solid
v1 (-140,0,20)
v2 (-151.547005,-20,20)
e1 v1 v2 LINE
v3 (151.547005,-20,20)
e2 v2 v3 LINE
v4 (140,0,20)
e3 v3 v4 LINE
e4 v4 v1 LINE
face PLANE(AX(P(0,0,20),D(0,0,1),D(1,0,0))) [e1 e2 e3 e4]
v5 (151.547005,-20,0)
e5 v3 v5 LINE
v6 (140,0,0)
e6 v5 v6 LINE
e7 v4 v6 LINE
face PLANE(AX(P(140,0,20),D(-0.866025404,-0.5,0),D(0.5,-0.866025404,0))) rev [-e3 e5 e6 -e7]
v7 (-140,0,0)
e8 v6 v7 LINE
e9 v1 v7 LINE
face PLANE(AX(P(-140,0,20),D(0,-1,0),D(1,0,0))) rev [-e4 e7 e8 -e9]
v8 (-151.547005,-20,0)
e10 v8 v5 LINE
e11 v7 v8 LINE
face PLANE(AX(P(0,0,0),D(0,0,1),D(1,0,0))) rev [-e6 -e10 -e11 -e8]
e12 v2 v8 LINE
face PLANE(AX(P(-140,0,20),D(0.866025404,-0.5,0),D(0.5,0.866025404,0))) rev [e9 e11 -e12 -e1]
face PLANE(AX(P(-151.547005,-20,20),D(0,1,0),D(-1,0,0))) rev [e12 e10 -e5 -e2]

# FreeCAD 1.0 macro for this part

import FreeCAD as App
import Part
import Sketcher
Q = App.Units.Quantity

doc = App.newDocument("Part")
params = doc.addObject("Spreadsheet::Sheet", "Params")
for row, (alias, value) in enumerate([
    ("sketch1_width", "280 mm"),
    ("pad1_length", "20 mm"),
], start=1):
    params.set(f"A{row}", alias)
    params.set(f"B{row}", "=" + value)
    params.setAlias(f"B{row}", alias)

body = doc.addObject("PartDesign::Body", "Body")

sketch1 = body.newObject("Sketcher::SketchObject", "Sketch")
sketch1.AttachmentSupport = (doc.getObject("XY_Plane"), [""])
sketch1.MapMode = "FlatFace"
sketch1.addGeometry(Part.LineSegment(App.Vector(140, 0, 0), App.Vector(-140, 0, 0)), False)
sketch1.addGeometry(Part.LineSegment(App.Vector(-140, 0, 0), App.Vector(-151.547005, -20, 0)), False)
sketch1.addGeometry(Part.LineSegment(App.Vector(-151.547005, -20, 0), App.Vector(151.547005, -20, 0)), False)
sketch1.addGeometry(Part.LineSegment(App.Vector(151.547005, -20, 0), App.Vector(140, 0, 0)), False)
sketch1.addConstraint(Sketcher.Constraint("Coincident", 0, 2, 1, 1))
sketch1.addConstraint(Sketcher.Constraint("Coincident", 1, 2, 2, 1))
sketch1.addConstraint(Sketcher.Constraint("Coincident", 2, 2, 3, 1))
sketch1.addConstraint(Sketcher.Constraint("Coincident", 3, 2, 0, 1))
sketch1.addConstraint(Sketcher.Constraint("Horizontal", 0))
sketch1.addConstraint(Sketcher.Constraint("Horizontal", 2))
sketch1.addConstraint(Sketcher.Constraint("Symmetric", 0, 2, 3, 2, -1, 1))
sketch1.addConstraint(Sketcher.Constraint("Equal", 1, 3))
sketch1.addConstraint(Sketcher.Constraint("DistanceX", 0, 2, 0, 1, 280.0))
sketch1.addConstraint(Sketcher.Constraint("Angle", 1, Q("-120 deg")))
sketch1.addConstraint(Sketcher.Constraint("DistanceY", 1, 2, -1, 1, 20.0))
sketch1.setExpression("Constraints[8]", "Params.sketch1_width")
pad1 = body.newObject("PartDesign::Pad", "Pad")
pad1.Profile = sketch1
pad1.setExpression("Length", "Params.pad1_length")

doc.recompute()
